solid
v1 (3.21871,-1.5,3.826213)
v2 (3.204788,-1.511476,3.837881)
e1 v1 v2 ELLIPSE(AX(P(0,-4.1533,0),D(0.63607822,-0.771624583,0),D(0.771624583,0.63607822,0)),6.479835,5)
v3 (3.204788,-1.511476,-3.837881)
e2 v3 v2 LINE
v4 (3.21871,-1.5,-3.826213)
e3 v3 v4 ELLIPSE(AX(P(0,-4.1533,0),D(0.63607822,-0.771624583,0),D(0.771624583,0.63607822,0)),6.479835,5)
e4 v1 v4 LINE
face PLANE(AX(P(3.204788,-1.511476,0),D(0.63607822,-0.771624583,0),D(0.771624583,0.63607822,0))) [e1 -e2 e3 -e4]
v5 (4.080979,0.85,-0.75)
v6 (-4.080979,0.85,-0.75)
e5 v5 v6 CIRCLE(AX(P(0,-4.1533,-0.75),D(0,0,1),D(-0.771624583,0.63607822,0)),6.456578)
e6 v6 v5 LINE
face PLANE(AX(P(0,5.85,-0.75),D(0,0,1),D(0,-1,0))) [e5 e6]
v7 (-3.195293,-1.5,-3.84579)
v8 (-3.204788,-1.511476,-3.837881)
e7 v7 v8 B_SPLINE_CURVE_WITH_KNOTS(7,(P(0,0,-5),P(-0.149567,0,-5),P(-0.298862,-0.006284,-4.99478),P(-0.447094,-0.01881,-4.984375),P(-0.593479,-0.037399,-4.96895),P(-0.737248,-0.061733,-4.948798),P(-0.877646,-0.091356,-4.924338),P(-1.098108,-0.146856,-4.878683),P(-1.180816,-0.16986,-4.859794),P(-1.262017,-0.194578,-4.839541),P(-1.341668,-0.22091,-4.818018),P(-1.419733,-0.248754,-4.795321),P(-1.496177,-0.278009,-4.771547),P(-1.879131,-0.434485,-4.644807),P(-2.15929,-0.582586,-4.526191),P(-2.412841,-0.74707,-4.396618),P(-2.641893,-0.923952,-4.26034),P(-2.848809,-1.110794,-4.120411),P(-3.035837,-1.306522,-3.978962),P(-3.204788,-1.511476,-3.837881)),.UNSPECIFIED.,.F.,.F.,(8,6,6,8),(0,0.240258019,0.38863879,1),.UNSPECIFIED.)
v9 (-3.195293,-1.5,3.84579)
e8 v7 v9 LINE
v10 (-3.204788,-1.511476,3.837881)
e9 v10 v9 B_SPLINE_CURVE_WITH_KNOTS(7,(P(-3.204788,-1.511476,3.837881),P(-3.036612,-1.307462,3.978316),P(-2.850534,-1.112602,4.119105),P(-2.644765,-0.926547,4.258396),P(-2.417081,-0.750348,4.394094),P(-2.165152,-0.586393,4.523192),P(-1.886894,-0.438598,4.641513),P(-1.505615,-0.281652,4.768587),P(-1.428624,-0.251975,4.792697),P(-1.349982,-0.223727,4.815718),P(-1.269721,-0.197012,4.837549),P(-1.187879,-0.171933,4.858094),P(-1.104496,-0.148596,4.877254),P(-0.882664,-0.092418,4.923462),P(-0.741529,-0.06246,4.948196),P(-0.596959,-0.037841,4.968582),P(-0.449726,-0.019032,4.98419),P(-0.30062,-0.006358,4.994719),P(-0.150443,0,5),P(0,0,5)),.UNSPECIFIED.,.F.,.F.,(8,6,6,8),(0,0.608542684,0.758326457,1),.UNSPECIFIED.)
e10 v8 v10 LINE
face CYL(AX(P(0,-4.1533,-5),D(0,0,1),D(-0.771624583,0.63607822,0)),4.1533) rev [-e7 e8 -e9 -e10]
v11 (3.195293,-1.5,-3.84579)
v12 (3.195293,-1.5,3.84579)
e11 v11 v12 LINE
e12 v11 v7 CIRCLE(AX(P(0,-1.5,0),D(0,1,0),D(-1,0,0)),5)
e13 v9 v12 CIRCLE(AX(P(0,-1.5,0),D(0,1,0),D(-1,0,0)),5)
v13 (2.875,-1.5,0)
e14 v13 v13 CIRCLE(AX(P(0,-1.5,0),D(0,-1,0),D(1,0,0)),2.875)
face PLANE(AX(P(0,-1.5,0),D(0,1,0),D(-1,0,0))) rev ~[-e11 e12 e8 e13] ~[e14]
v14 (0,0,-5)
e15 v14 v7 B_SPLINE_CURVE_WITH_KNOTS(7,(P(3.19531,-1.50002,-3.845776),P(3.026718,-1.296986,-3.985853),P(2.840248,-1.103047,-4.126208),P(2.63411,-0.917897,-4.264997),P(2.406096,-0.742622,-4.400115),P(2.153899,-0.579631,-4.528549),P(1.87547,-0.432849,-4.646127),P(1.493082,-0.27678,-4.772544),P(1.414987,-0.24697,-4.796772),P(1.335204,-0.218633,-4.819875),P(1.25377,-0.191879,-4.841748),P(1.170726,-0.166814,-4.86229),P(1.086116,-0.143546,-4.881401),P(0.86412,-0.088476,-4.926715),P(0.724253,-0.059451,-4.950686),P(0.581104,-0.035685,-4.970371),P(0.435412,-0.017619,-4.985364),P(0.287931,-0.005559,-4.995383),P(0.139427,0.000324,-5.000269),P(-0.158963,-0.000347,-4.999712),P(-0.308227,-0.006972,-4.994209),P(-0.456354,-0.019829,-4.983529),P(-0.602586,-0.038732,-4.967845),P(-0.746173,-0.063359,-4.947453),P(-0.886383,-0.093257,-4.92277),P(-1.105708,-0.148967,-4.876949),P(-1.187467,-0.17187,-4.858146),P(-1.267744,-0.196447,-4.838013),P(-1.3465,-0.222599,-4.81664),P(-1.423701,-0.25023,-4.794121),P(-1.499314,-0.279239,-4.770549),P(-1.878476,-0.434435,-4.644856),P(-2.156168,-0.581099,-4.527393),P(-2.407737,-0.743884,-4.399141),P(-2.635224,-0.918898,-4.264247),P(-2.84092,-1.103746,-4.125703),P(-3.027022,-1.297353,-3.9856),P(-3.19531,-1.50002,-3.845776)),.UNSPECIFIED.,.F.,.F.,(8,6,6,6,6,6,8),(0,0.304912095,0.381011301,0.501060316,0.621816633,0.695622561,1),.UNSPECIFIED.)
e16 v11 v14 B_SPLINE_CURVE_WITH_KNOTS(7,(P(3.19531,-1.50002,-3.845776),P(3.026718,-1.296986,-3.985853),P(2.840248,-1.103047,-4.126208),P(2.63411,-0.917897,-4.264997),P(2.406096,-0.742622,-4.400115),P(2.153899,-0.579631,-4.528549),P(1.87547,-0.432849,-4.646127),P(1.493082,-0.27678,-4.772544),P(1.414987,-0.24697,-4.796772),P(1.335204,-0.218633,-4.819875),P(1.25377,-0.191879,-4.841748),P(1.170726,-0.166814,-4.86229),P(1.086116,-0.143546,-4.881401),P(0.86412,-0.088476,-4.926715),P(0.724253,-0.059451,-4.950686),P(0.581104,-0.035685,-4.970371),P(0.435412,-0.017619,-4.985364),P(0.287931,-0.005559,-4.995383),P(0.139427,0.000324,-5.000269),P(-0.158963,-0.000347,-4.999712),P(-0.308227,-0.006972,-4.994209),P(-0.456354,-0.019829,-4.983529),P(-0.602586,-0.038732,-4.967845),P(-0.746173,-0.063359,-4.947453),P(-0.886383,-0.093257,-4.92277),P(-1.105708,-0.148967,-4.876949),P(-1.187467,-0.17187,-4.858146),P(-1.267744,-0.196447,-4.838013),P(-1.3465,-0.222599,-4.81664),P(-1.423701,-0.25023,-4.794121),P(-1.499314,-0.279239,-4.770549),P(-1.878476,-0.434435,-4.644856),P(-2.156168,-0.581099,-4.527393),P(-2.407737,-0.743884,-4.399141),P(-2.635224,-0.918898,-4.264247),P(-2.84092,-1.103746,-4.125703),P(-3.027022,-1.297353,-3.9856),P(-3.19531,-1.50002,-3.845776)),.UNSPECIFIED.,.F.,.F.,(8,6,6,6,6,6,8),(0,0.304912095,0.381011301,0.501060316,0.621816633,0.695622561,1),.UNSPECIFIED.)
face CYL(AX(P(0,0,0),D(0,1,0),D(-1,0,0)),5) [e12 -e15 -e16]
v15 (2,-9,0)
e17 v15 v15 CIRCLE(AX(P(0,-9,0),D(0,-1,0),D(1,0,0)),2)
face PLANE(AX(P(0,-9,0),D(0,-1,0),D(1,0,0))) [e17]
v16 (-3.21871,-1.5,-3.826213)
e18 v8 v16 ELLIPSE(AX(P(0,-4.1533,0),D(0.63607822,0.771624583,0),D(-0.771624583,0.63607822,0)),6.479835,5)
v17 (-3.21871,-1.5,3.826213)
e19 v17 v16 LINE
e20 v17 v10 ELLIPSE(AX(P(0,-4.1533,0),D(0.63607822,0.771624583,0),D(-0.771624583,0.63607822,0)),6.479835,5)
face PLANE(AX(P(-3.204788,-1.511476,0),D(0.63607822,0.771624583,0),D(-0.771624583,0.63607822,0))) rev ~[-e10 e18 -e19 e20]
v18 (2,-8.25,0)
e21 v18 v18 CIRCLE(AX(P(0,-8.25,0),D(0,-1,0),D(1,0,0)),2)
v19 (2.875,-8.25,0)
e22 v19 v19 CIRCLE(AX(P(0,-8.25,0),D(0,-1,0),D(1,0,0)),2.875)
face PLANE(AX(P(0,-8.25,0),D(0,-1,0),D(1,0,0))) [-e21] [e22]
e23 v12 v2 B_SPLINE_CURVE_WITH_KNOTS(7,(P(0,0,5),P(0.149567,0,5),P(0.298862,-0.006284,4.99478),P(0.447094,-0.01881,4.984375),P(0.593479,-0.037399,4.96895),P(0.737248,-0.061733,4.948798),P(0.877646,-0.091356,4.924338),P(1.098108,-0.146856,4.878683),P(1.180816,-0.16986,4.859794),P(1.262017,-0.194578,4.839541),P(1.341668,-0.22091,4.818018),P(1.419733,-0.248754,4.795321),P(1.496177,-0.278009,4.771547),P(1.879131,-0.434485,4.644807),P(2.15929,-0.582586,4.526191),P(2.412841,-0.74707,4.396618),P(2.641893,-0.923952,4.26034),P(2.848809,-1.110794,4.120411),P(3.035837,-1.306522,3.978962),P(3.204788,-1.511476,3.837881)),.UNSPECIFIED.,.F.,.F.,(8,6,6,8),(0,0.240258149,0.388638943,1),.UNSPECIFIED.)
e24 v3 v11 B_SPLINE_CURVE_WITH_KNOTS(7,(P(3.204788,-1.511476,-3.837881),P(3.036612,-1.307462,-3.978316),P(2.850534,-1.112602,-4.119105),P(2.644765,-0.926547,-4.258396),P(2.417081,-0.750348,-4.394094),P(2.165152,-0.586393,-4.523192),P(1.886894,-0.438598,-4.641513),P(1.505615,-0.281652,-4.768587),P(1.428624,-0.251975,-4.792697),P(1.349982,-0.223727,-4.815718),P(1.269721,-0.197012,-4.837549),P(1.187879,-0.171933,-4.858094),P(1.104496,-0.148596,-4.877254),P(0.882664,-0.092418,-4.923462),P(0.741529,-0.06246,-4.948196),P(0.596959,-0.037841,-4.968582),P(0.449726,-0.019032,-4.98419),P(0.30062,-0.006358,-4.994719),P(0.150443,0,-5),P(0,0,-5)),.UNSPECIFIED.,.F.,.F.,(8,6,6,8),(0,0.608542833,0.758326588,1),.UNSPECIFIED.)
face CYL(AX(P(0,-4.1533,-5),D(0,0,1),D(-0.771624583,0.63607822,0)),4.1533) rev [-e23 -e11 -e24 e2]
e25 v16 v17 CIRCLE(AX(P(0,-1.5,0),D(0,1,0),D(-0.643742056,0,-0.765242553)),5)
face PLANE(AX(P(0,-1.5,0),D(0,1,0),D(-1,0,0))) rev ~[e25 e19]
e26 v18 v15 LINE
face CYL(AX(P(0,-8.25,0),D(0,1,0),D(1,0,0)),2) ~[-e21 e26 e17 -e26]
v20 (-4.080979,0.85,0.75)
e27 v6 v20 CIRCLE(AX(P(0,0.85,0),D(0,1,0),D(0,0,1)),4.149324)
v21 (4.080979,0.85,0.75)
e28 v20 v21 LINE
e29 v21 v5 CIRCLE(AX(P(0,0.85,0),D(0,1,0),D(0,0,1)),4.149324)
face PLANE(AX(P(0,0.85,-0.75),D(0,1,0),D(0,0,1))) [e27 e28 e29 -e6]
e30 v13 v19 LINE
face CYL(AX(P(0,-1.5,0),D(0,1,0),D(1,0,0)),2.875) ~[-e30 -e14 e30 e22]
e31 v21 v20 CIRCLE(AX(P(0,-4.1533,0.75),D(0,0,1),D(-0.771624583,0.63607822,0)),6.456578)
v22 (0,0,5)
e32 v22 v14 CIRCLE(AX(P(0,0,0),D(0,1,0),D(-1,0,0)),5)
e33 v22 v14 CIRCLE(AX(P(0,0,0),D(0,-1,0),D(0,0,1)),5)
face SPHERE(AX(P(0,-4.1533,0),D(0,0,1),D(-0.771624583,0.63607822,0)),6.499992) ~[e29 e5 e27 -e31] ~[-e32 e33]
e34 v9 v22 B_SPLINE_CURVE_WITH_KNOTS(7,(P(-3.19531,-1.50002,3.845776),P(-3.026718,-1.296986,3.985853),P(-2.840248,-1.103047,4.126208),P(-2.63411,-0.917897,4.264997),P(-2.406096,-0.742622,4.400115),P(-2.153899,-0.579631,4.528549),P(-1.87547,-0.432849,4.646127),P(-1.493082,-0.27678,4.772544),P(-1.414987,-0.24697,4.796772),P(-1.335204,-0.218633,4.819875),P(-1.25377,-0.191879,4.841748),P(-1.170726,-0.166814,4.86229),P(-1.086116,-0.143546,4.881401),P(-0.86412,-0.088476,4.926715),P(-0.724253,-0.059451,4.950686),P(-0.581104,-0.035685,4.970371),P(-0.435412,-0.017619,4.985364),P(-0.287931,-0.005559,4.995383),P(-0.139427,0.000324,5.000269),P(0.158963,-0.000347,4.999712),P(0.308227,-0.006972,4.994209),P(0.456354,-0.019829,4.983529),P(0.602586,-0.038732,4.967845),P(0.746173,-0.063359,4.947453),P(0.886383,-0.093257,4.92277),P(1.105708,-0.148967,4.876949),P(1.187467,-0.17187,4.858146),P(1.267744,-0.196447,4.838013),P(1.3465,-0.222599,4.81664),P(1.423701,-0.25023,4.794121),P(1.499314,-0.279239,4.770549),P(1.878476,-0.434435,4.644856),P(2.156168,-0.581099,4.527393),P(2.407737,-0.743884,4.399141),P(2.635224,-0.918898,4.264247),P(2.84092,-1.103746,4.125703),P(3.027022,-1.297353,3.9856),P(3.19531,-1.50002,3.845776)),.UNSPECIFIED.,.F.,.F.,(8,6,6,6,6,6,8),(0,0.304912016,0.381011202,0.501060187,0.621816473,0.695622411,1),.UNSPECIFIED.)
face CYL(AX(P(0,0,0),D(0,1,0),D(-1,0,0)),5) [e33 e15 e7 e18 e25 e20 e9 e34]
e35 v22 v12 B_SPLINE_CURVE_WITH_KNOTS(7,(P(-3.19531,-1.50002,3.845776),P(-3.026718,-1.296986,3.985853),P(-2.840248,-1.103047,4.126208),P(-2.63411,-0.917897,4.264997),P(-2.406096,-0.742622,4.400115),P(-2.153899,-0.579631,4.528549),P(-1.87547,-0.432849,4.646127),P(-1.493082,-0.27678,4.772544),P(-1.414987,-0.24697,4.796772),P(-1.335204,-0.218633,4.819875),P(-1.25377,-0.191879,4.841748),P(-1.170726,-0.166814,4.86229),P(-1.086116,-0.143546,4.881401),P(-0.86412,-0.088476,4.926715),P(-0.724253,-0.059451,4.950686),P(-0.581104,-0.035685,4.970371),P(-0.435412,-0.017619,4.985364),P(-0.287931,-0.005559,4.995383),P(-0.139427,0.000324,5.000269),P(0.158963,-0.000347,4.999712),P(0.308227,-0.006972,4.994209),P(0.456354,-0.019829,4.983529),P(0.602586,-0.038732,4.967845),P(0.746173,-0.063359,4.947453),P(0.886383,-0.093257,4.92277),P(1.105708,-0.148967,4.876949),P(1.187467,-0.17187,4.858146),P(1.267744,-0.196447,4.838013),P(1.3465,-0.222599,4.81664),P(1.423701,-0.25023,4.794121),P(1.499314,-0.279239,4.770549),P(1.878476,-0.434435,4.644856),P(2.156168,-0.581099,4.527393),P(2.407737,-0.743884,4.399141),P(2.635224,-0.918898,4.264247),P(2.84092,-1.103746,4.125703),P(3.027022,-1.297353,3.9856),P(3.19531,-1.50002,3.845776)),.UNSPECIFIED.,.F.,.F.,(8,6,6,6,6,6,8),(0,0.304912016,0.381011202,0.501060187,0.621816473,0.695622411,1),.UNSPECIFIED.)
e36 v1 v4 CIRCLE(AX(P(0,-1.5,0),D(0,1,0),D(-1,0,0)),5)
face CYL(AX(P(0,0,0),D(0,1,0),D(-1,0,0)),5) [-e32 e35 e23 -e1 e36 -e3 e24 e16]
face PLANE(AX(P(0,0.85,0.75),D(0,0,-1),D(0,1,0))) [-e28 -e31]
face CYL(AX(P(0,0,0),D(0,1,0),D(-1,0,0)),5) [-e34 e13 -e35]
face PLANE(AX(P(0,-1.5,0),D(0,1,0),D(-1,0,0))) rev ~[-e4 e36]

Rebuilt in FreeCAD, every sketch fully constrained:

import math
import FreeCAD as App
import Part
import Sketcher

V = App.Vector
Q = App.Units.Quantity

doc = App.newDocument("Part")
body = doc.addObject("PartDesign::Body", "Body")

sketch1 = doc.addObject("Sketcher::SketchObject", "Sketch")
body.addObject(sketch1)
sketch1.AttachmentSupport = (doc.XZ_Plane, [""])
sketch1.MapMode = "FlatFace"
sketch1.addGeometry(Part.Circle(V(0, 0, 0), V(0, 0, 1), 5), False)
sketch1.addConstraint([
    Sketcher.Constraint("Coincident", 0, 3, -1, 1),
    Sketcher.Constraint("Diameter", 0, Q("10 mm")),
])
pad1 = doc.addObject("PartDesign::Pad", "Pad")
body.addObject(pad1)
pad1.Profile = sketch1
pad1.Length = 1.5

sketch2 = doc.addObject("Sketcher::SketchObject", "Sketch001")
body.addObject(sketch2)
sketch2.AttachmentSupport = (doc.XZ_Plane, [""])
sketch2.MapMode = "FlatFace"
sketch2.AttachmentOffset = App.Placement(V(0, 0, 1.5), App.Rotation())
sketch2.addGeometry(Part.Circle(V(0, 0, 0), V(0, 0, 1), 2.9), False)
sketch2.addConstraint([
    Sketcher.Constraint("Coincident", 0, 3, -1, 1),
    Sketcher.Constraint("Diameter", 0, Q("5.75 mm")),
])
pad2 = doc.addObject("PartDesign::Pad", "Pad001")
body.addObject(pad2)
pad2.Profile = sketch2
pad2.Length = 6.75

sketch3 = doc.addObject("Sketcher::SketchObject", "Sketch002")
body.addObject(sketch3)
sketch3.AttachmentSupport = (doc.XZ_Plane, [""])
sketch3.MapMode = "FlatFace"
sketch3.AttachmentOffset = App.Placement(V(0, 0, 8.25), App.Rotation())
sketch3.addGeometry(Part.Circle(V(0, 0, 0), V(0, 0, 1), 2), False)
sketch3.addConstraint([
    Sketcher.Constraint("Coincident", 0, 3, -1, 1),
    Sketcher.Constraint("Diameter", 0, Q("4 mm")),
])
pad3 = doc.addObject("PartDesign::Pad", "Pad002")
body.addObject(pad3)
pad3.Profile = sketch3
pad3.Length = 0.75

sketch4 = doc.addObject("Sketcher::SketchObject", "Sketch003")
body.addObject(sketch4)
sketch4.AttachmentSupport = (doc.YZ_Plane, [""])
sketch4.MapMode = "FlatFace"
sketch4.addGeometry([
    Part.LineSegment(V(0, 5, 0), V(0, -5, 0)),
    Part.ArcOfCircle(Part.Circle(V(-4, 0, 0), V(0, 0, 1), 6), math.radians(-50), math.radians(50)),
], False)
sketch4.addGeometry(Part.LineSegment(V(-4, 5, 0), V(-4, -5, 0)), True)
sketch4.addConstraint([
    Sketcher.Constraint("Coincident", 0, 1, 1, 2),
    Sketcher.Constraint("Coincident", 1, 1, 0, 2),
    Sketcher.Constraint("Vertical", 0),
    Sketcher.Constraint("Vertical", 2),
    Sketcher.Constraint("Symmetric", 0, 1, 1, 1, -1, 1),
    Sketcher.Constraint("Horizontal", 0, 1, 2, 1),
    Sketcher.Constraint("Horizontal", 1, 1, 2, 2),
    Sketcher.Constraint("Vertical", 1, 3, 2, 1),
    Sketcher.Constraint("Radius", 1, Q("6.5 mm")),
    Sketcher.Constraint("DistanceY", 0, 2, 0, 1, Q("10 mm")),
])
revolution = doc.addObject("PartDesign::Revolution", "Revolution")
body.addObject(revolution)
revolution.Profile = sketch4
revolution.ReferenceAxis = (sketch4, ["Axis0"])
revolution.Angle = 101
revolution.Midplane = True

sketch5 = doc.addObject("Sketcher::SketchObject", "Sketch004")
body.addObject(sketch5)
sketch5.AttachmentSupport = (doc.XZ_Plane, [""])
sketch5.MapMode = "FlatFace"
sketch5.addGeometry([
    Part.Circle(V(0, 0, 0), V(0, 0, 1), 9),
    Part.Circle(V(0, 0, 0), V(0, 0, 1), 5),
], False)
sketch5.addConstraint([
    Sketcher.Constraint("Coincident", 0, 3, -1, 1),
    Sketcher.Constraint("Coincident", 1, 3, -1, 1),
    Sketcher.Constraint("Diameter", 1, Q("10 mm")),
    Sketcher.Constraint("Diameter", 0, Q("17.946 mm")),
])
pocket1 = doc.addObject("PartDesign::Pocket", "Pocket")
body.addObject(pocket1)
pocket1.Profile = sketch5
pocket1.Length = 100
pocket1.Midplane = True

sketch6 = doc.addObject("Sketcher::SketchObject", "Sketch005")
body.addObject(sketch6)
sketch6.AttachmentSupport = (doc.YZ_Plane, [""])
sketch6.MapMode = "FlatFace"
sketch6.addGeometry([
    Part.LineSegment(V(5.8, 0.8, 0), V(0.8, 0.8, 0)),
    Part.LineSegment(V(0.8, 0.8, 0), V(0.8, -0.8, 0)),
    Part.LineSegment(V(0.8, -0.8, 0), V(5.8, -0.8, 0)),
    Part.LineSegment(V(5.8, -0.8, 0), V(5.8, 0.8, 0)),
], False)
sketch6.addConstraint([
    Sketcher.Constraint("Coincident", 0, 2, 1, 1),
    Sketcher.Constraint("Coincident", 1, 2, 2, 1),
    Sketcher.Constraint("Coincident", 2, 2, 3, 1),
    Sketcher.Constraint("Coincident", 3, 2, 0, 1),
    Sketcher.Constraint("Horizontal", 0),
    Sketcher.Constraint("Vertical", 1),
    Sketcher.Constraint("Horizontal", 2),
    Sketcher.Constraint("Vertical", 3),
    Sketcher.Constraint("DistanceX", 0, 2, 0, 1, Q("5 mm")),
    Sketcher.Constraint("DistanceY", 1, 2, 1, 1, Q("1.5 mm")),
    Sketcher.Constraint("DistanceX", -1, 1, 0, 2, Q("0.85 mm")),
    Sketcher.Constraint("DistanceY", -1, 1, 0, 2, Q("0.75 mm")),
])
pocket2 = doc.addObject("PartDesign::Pocket", "Pocket001")
body.addObject(pocket2)
pocket2.Profile = sketch6
pocket2.Length = 10
pocket2.Midplane = True

doc.recompute()
